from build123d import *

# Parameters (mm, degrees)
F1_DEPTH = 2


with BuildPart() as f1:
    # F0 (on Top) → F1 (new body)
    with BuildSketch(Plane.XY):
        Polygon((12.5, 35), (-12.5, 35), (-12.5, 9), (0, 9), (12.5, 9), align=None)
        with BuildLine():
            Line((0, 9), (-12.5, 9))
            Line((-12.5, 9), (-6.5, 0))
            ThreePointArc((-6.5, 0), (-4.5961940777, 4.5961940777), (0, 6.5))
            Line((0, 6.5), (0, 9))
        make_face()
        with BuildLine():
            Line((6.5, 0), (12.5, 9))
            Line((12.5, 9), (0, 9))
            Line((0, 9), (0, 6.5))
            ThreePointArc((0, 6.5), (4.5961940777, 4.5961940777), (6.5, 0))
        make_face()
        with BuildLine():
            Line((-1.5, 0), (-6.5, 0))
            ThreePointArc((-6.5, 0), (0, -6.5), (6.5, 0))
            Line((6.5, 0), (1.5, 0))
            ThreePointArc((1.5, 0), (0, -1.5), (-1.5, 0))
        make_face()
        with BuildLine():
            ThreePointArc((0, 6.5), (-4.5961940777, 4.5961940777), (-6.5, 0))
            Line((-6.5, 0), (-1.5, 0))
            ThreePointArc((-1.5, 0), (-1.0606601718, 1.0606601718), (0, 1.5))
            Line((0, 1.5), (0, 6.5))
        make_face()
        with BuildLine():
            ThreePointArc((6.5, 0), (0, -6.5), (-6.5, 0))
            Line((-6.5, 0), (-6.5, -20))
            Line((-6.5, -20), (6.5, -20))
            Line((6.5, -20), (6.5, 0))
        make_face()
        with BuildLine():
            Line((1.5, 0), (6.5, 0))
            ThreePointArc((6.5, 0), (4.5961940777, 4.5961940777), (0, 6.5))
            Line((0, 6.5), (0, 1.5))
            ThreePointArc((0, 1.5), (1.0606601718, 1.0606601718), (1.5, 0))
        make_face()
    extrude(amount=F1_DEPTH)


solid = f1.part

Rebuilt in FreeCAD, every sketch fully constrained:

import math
import FreeCAD as App
import Part
import Sketcher


def add_polygon(sketch, points):
    """Adds a closed chain of lines whose ends are joined by coincident constraints."""
    first, n = sketch.GeometryCount, len(points)
    for a, b in zip(points, points[1:] + points[:1]):
        sketch.addGeometry(Part.LineSegment(App.Vector(*a, 0), App.Vector(*b, 0)), False)
    for i in range(n):
        sketch.addConstraint(Sketcher.Constraint("Coincident", first + i, 2, first + (i + 1) % n, 1))

doc = App.newDocument("Part")
body = doc.addObject("PartDesign::Body", "Body")

# Sketch on XY plane
sketch1 = body.newObject("Sketcher::SketchObject", "Sketch")
sketch1.AttachmentSupport = (doc.getObject("XY_Plane"), [""])
sketch1.MapMode = "FlatFace"
add_polygon(sketch1, [(6.5, -20), (6.5, 0), (12.5, 9), (12.5, 35), (-12.5, 35), (-12.5, 9), (-6.5, 0), (-6.5, -20)])  # lines 0-7
sketch1.addGeometry(Part.ArcOfCircle(Part.Circle(App.Vector(0, 0, 0), App.Vector(0, 0, 1), 1.5), math.radians(90), math.radians(180)), False)  # 8
sketch1.addGeometry(Part.ArcOfCircle(Part.Circle(App.Vector(0, 0, 0), App.Vector(0, 0, 1), 1.5), math.radians(0), math.radians(90)), False)  # 9
sketch1.addGeometry(Part.ArcOfCircle(Part.Circle(App.Vector(0, 0, 0), App.Vector(0, 0, 1), 1.5), math.radians(180), math.radians(360)), False)  # 10
sketch1.addConstraint([
    Sketcher.Constraint("Tangent", 8, 1, 9, 2),
    Sketcher.Constraint("Tangent", 9, 1, 10, 2),
    Sketcher.Constraint("Tangent", 10, 1, 8, 2),
    Sketcher.Constraint("Vertical", 0),
    Sketcher.Constraint("Vertical", 2),
    Sketcher.Constraint("Horizontal", 3),
    Sketcher.Constraint("Vertical", 4),
    Sketcher.Constraint("Vertical", 6),
    Sketcher.Constraint("Horizontal", 7),
    Sketcher.Constraint("Coincident", 8, 3, -1, 1),
    Sketcher.Constraint("Symmetric", 0, 2, 5, 2, -1, 1),
    Sketcher.Constraint("Symmetric", 1, 2, 4, 2, -2),
    Sketcher.Constraint("PointOnObject", 0, 2, -1),
    Sketcher.Constraint("PointOnObject", 8, 1, -2),
    Sketcher.Constraint("PointOnObject", 9, 1, -1),
    Sketcher.Constraint("PointOnObject", 10, 1, -1),
    Sketcher.Constraint("Radius", 8, 1.5),
    Sketcher.Constraint("DistanceX", 3, 2, 3, 1, 25.0),
    Sketcher.Constraint("DistanceX", 7, 1, 7, 2, 13.0),
    Sketcher.Constraint("DistanceY", 0, 1, 0, 2, 20.0),
    Sketcher.Constraint("DistanceY", 2, 1, 2, 2, 26.0),
    Sketcher.Constraint("DistanceY", -1, 1, 1, 2, 9.0),
])
pad1 = body.newObject("PartDesign::Pad", "Pad")
pad1.Profile = sketch1
pad1.Length = 2

doc.recompute()
